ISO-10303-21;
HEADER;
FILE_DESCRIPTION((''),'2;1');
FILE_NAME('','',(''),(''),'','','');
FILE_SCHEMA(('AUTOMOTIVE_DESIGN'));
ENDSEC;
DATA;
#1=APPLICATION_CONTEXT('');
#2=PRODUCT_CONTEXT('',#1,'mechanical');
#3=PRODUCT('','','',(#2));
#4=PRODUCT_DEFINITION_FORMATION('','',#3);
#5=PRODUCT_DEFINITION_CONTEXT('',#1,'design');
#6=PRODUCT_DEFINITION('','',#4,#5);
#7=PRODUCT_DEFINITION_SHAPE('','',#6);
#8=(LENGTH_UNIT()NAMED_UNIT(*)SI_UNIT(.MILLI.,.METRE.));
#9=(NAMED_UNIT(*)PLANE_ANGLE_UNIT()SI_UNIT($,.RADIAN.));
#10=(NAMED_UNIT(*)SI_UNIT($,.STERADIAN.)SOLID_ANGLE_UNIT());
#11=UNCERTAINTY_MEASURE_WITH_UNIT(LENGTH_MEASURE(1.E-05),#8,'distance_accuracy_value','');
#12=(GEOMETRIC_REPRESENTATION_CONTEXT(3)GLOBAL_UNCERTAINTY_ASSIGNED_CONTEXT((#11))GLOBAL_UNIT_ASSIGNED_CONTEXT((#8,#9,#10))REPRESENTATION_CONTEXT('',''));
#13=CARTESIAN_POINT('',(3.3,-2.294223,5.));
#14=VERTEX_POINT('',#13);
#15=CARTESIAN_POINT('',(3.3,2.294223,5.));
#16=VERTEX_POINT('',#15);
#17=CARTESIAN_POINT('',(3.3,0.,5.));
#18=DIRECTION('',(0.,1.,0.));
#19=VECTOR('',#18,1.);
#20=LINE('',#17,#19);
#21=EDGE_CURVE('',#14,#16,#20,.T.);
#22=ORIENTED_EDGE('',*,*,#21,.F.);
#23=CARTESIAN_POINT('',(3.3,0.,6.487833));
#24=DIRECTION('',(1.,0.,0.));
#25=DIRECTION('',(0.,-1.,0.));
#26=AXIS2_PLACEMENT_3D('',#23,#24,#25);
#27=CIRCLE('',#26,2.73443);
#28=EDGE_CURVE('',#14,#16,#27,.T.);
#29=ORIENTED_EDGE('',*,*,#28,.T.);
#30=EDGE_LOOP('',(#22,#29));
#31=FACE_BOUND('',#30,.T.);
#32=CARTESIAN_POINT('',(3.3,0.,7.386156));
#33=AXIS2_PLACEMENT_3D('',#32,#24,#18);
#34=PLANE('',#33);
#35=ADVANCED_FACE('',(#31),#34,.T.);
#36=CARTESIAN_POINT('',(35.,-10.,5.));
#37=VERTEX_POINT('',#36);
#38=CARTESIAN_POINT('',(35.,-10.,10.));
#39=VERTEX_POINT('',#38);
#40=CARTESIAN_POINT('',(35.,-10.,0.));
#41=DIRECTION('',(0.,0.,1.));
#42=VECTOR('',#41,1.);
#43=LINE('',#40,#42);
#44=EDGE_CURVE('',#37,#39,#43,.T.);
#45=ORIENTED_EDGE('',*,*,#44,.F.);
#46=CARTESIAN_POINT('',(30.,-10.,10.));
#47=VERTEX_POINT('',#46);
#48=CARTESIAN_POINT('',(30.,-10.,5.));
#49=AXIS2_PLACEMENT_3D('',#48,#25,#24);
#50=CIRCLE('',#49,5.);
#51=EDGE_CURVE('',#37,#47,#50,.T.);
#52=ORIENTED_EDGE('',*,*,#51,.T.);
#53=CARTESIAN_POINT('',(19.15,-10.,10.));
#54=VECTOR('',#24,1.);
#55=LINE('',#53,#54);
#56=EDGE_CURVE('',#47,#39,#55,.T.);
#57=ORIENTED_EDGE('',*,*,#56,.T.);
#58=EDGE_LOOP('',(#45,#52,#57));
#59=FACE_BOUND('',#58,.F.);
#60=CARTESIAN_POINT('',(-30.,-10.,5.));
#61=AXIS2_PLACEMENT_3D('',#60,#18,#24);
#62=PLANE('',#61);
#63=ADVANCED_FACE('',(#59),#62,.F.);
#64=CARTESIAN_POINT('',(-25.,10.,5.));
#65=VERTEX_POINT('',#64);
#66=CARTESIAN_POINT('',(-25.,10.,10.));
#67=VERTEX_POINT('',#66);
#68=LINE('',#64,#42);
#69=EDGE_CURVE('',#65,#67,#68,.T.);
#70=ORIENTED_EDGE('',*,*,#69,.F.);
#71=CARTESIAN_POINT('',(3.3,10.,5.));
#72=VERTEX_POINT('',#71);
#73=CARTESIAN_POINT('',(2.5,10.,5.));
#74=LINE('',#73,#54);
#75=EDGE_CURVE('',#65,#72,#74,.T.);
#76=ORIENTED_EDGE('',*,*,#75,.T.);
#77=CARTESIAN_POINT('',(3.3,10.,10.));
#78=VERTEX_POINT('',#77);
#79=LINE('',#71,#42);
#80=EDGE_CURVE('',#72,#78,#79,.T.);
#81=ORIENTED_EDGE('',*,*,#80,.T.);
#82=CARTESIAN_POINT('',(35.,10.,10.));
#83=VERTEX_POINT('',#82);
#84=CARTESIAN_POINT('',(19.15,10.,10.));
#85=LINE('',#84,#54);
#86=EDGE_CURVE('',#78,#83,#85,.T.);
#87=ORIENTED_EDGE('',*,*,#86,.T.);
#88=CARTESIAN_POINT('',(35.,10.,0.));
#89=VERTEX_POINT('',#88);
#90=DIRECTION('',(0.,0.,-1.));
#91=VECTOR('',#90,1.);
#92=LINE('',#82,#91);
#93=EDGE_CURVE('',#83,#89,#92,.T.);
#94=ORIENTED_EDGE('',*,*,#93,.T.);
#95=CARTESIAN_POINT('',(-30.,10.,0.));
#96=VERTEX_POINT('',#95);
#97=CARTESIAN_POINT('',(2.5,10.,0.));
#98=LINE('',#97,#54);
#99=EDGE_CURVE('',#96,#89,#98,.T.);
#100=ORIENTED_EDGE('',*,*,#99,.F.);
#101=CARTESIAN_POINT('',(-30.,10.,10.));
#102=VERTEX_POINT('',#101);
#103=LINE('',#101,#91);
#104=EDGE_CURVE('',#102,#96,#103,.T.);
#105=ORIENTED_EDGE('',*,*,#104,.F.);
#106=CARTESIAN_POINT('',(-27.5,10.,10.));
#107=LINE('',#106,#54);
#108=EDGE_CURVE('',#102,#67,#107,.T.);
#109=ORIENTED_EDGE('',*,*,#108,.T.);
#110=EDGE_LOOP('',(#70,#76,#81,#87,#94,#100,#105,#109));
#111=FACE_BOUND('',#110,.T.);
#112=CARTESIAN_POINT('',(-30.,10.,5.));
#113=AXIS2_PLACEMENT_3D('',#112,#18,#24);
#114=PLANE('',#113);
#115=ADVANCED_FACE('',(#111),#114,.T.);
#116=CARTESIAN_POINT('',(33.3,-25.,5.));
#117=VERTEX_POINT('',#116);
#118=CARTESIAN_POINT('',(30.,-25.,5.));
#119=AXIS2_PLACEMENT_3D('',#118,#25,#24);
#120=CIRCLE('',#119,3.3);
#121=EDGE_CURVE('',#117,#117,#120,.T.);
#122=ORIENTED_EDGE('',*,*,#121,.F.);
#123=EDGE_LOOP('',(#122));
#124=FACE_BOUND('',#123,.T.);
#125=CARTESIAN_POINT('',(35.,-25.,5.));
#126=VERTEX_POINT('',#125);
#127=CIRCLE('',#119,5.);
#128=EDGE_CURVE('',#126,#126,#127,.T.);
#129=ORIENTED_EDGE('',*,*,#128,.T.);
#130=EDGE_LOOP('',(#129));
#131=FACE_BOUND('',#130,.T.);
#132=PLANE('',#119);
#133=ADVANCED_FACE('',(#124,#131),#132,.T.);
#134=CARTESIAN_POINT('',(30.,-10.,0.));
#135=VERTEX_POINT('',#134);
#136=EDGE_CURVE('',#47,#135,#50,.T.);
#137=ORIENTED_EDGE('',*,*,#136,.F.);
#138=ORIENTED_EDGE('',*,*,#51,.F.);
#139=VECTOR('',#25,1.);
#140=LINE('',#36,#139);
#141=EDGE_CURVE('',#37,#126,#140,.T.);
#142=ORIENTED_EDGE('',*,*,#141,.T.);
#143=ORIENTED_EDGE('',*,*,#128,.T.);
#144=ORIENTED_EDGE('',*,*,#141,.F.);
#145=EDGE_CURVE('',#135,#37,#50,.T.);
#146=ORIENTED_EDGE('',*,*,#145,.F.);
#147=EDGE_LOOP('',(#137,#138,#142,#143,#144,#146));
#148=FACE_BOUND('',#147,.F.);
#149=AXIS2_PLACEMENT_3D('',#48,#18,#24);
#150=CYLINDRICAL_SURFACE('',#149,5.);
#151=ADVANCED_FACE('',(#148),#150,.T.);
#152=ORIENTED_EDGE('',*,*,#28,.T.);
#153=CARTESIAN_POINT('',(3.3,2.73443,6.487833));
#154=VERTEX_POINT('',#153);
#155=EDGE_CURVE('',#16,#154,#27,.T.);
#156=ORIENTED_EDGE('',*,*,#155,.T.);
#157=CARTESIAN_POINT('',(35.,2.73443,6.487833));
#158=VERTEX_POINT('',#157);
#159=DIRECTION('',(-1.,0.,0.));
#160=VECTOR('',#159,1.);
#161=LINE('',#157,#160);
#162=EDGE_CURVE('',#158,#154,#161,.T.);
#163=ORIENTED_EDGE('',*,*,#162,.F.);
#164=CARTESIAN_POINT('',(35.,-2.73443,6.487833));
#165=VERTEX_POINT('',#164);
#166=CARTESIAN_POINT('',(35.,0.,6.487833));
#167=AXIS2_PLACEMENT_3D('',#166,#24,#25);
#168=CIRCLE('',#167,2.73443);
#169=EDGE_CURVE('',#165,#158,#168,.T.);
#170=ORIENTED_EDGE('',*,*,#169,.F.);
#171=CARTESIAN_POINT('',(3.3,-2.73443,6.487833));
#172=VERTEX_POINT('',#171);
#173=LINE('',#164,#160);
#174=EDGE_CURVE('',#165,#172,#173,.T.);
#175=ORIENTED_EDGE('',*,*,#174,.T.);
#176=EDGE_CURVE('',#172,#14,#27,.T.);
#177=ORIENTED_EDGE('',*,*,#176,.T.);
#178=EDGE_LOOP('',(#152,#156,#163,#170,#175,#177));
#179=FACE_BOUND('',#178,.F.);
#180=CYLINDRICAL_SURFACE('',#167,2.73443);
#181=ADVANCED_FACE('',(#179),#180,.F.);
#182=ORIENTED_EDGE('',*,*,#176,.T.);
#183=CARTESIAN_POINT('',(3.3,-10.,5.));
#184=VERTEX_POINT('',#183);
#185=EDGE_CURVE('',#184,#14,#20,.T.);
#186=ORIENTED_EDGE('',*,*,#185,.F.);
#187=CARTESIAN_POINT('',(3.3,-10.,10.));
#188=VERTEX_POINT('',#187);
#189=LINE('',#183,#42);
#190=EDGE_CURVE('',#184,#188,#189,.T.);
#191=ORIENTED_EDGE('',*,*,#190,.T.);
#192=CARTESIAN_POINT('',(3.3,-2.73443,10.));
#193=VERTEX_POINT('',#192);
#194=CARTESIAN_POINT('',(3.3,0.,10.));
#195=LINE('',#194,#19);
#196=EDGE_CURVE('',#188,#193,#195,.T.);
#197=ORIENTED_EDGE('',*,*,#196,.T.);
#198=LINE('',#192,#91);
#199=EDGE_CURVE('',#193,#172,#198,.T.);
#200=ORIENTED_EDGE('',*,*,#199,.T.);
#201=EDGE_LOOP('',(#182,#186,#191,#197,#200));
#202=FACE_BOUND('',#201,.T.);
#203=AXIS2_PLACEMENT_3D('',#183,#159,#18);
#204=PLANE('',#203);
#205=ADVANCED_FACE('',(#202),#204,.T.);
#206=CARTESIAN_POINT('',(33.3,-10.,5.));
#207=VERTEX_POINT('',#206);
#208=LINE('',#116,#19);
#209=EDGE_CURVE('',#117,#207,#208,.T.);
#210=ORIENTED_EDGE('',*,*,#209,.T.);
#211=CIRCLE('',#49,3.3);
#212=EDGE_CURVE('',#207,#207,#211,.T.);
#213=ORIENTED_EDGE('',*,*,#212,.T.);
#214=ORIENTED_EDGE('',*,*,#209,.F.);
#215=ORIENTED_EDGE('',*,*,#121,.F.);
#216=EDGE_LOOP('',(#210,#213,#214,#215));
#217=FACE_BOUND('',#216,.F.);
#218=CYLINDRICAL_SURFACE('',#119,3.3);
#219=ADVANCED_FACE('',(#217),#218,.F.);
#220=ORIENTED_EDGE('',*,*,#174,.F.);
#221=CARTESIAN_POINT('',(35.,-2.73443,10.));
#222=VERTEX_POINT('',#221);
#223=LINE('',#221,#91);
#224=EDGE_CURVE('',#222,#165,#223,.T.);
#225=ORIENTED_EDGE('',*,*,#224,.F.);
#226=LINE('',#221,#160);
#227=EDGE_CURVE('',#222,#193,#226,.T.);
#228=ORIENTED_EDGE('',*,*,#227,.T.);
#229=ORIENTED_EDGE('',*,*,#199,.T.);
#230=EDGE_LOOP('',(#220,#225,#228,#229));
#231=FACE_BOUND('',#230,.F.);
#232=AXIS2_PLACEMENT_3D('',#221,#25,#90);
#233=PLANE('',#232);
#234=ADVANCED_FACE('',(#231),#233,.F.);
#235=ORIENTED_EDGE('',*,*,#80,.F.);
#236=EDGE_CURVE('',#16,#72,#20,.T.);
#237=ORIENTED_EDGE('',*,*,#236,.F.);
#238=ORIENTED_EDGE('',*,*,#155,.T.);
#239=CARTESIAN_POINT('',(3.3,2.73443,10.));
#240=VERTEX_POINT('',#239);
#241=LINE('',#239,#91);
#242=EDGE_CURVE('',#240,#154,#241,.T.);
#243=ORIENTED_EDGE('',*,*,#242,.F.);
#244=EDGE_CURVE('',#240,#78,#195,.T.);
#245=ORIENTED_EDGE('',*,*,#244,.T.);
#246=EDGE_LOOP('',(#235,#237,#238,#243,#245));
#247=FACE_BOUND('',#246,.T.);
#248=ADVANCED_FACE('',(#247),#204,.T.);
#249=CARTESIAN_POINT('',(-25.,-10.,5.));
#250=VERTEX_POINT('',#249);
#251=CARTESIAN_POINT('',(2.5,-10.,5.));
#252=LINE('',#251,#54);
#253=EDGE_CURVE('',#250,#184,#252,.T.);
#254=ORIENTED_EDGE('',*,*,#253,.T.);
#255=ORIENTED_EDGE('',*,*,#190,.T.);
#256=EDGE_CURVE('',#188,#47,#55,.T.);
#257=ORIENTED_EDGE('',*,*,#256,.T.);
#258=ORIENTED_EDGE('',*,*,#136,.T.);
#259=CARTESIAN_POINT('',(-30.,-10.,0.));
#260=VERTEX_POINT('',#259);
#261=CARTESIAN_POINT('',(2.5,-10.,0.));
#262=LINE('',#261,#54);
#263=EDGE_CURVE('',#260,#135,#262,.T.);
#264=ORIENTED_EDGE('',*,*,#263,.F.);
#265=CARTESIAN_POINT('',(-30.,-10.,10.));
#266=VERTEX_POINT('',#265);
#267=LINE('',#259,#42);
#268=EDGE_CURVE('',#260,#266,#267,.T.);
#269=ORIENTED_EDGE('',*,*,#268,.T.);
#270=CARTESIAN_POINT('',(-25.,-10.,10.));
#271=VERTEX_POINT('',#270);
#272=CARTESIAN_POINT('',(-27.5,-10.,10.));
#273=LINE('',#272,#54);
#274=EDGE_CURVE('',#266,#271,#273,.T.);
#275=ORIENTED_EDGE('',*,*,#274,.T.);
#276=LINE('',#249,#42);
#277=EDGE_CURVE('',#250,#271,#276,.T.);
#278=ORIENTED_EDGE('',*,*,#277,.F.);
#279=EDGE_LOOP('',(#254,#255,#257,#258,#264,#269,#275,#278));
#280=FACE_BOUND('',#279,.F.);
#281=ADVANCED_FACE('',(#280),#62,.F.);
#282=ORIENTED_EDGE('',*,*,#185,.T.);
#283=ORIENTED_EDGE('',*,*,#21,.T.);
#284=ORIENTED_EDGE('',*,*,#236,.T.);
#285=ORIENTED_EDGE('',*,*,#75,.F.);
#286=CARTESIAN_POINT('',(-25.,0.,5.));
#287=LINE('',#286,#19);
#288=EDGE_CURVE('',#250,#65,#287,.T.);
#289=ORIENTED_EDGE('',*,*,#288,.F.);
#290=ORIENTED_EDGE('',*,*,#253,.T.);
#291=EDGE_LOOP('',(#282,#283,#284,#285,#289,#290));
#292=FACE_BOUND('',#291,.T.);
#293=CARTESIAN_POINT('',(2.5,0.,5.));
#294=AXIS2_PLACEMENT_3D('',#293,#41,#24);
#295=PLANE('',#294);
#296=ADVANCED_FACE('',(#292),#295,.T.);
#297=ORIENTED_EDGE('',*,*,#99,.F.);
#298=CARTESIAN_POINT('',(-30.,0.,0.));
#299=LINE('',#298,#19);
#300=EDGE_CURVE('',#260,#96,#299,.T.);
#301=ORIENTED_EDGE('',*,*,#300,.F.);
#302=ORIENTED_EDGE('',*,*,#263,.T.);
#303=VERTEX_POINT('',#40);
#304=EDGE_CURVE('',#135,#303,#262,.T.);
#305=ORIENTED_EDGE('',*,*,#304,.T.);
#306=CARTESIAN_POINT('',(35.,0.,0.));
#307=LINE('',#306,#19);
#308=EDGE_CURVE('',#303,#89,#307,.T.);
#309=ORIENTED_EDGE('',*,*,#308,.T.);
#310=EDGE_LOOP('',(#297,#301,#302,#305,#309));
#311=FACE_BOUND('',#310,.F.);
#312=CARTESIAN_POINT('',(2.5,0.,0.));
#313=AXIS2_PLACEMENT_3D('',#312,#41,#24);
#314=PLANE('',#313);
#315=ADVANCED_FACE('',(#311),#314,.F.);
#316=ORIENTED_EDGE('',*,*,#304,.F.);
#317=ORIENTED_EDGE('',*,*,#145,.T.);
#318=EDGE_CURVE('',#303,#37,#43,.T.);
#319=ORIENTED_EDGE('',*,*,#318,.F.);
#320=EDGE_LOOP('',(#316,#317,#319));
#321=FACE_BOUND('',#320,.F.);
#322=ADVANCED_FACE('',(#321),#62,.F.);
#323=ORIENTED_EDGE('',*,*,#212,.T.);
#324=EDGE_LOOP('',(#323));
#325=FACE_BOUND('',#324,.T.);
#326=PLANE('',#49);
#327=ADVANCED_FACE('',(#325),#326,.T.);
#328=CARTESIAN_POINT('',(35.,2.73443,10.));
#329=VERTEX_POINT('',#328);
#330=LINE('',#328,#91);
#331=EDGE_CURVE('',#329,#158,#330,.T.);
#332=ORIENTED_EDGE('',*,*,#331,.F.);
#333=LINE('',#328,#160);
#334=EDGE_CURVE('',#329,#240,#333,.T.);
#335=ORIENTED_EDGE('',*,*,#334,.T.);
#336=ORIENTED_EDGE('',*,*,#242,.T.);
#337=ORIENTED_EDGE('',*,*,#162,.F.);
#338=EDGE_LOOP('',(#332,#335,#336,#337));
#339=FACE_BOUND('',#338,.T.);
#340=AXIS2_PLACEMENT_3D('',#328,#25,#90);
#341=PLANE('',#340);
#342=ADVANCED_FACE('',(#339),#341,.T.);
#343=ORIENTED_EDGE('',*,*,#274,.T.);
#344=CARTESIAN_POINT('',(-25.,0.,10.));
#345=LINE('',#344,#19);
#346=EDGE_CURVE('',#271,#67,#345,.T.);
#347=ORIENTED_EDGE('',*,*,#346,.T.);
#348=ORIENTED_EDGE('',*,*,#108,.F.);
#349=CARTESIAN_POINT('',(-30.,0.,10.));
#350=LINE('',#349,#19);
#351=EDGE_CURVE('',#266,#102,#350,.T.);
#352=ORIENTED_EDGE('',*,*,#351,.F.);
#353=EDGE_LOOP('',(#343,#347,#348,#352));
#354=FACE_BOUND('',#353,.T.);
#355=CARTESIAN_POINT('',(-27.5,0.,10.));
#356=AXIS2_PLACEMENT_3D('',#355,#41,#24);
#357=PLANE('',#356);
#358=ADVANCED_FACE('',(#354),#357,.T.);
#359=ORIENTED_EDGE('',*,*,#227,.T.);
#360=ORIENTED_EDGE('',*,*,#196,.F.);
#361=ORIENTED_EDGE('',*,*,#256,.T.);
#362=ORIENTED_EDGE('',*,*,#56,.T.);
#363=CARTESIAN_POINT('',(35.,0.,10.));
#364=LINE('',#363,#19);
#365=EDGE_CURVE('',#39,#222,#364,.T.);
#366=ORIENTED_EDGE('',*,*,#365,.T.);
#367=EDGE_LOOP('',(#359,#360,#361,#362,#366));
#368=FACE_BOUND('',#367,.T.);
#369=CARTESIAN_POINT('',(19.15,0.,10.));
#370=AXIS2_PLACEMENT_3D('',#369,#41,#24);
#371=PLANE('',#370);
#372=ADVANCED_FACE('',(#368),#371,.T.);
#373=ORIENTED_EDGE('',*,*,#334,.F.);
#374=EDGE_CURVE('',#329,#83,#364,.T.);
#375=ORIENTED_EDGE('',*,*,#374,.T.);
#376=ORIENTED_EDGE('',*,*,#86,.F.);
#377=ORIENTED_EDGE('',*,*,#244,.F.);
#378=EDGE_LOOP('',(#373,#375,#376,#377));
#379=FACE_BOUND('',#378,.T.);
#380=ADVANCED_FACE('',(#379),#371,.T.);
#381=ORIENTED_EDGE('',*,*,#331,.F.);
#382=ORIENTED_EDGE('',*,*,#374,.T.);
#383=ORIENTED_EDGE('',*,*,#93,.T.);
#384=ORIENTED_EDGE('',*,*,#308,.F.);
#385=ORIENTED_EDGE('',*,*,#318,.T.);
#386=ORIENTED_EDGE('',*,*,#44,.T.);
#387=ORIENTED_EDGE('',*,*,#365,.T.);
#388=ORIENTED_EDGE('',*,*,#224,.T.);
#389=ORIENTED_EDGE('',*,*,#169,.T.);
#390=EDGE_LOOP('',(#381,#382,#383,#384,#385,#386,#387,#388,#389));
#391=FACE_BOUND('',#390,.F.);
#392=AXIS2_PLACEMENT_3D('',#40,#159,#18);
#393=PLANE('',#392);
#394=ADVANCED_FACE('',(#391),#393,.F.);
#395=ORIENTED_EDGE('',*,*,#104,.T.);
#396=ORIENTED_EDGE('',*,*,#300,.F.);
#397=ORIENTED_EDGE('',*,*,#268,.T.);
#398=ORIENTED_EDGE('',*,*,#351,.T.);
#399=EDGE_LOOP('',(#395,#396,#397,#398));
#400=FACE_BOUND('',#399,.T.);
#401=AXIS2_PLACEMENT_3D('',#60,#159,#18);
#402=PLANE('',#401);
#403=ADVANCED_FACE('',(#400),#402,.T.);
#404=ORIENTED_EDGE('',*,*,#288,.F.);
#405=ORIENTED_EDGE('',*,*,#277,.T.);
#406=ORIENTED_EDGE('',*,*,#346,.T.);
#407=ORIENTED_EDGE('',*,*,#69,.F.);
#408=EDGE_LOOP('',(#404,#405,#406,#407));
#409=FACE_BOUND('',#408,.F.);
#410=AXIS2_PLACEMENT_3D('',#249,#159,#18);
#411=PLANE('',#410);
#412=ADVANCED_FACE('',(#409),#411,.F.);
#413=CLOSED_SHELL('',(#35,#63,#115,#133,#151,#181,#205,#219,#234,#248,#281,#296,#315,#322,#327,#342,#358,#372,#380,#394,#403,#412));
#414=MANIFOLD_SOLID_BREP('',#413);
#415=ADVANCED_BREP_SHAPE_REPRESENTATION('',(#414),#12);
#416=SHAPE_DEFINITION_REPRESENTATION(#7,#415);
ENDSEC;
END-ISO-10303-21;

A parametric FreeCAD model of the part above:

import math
import FreeCAD as App
import Part
import Sketcher

doc = App.newDocument("Part")
body = doc.addObject("PartDesign::Body", "Body")

# Sketch on XY plane
sketch1 = body.newObject("Sketcher::SketchObject", "Sketch")
sketch1.AttachmentSupport = (doc.getObject("XY_Plane"), [""])
sketch1.MapMode = "FlatFace"
sketch1.addGeometry(Part.LineSegment(App.Vector(-30, 10, 0), App.Vector(-30, -10, 0)), False)
sketch1.addGeometry(Part.LineSegment(App.Vector(-30, -10, 0), App.Vector(35, -10, 0)), False)
sketch1.addGeometry(Part.LineSegment(App.Vector(35, -10, 0), App.Vector(35, 10, 0)), False)
sketch1.addGeometry(Part.LineSegment(App.Vector(35, 10, 0), App.Vector(-30, 10, 0)), False)
sketch1.addConstraint(Sketcher.Constraint("Coincident", 0, 2, 1, 1))
sketch1.addConstraint(Sketcher.Constraint("Coincident", 1, 2, 2, 1))
sketch1.addConstraint(Sketcher.Constraint("Coincident", 2, 2, 3, 1))
sketch1.addConstraint(Sketcher.Constraint("Coincident", 3, 2, 0, 1))
sketch1.addConstraint(Sketcher.Constraint("Vertical", 0))
sketch1.addConstraint(Sketcher.Constraint("Horizontal", 1))
sketch1.addConstraint(Sketcher.Constraint("Vertical", 2))
sketch1.addConstraint(Sketcher.Constraint("Horizontal", 3))
sketch1.addConstraint(Sketcher.Constraint("DistanceX", 1, 1, 1, 2, 65.0))
sketch1.addConstraint(Sketcher.Constraint("DistanceY", 0, 2, 0, 1, 20.0))
sketch1.addConstraint(Sketcher.Constraint("DistanceX", 0, 2, -1, 1, 30.0))
sketch1.addConstraint(Sketcher.Constraint("DistanceY", 0, 2, -1, 1, 10.0))
pad1 = body.newObject("PartDesign::Pad", "Pad")
pad1.Profile = sketch1
pad1.Length = 5

# Sketch on XY plane
sketch2 = body.newObject("Sketcher::SketchObject", "Sketch001")
sketch2.AttachmentSupport = (doc.getObject("XY_Plane"), [""])
sketch2.MapMode = "FlatFace"
sketch2.AttachmentOffset = App.Placement(App.Vector(0, 0, 5), App.Rotation())
sketch2.addGeometry(Part.LineSegment(App.Vector(-30, 10, 0), App.Vector(-30, -10, 0)), False)
sketch2.addGeometry(Part.LineSegment(App.Vector(-30, -10, 0), App.Vector(-25, -10, 0)), False)
sketch2.addGeometry(Part.LineSegment(App.Vector(-25, -10, 0), App.Vector(-25, 10, 0)), False)
sketch2.addGeometry(Part.LineSegment(App.Vector(-25, 10, 0), App.Vector(-30, 10, 0)), False)
sketch2.addGeometry(Part.LineSegment(App.Vector(3, 10, 0), App.Vector(3, -10, 0)), False)
sketch2.addGeometry(Part.LineSegment(App.Vector(3, -10, 0), App.Vector(35, -10, 0)), False)
sketch2.addGeometry(Part.LineSegment(App.Vector(35, -10, 0), App.Vector(35, 10, 0)), False)
sketch2.addGeometry(Part.LineSegment(App.Vector(35, 10, 0), App.Vector(3, 10, 0)), False)
sketch2.addConstraint(Sketcher.Constraint("Coincident", 0, 2, 1, 1))
sketch2.addConstraint(Sketcher.Constraint("Coincident", 1, 2, 2, 1))
sketch2.addConstraint(Sketcher.Constraint("Coincident", 2, 2, 3, 1))
sketch2.addConstraint(Sketcher.Constraint("Coincident", 3, 2, 0, 1))
sketch2.addConstraint(Sketcher.Constraint("Coincident", 4, 2, 5, 1))
sketch2.addConstraint(Sketcher.Constraint("Coincident", 5, 2, 6, 1))
sketch2.addConstraint(Sketcher.Constraint("Coincident", 6, 2, 7, 1))
sketch2.addConstraint(Sketcher.Constraint("Coincident", 7, 2, 4, 1))
sketch2.addConstraint(Sketcher.Constraint("Vertical", 0))
sketch2.addConstraint(Sketcher.Constraint("Horizontal", 1))
sketch2.addConstraint(Sketcher.Constraint("Vertical", 2))
sketch2.addConstraint(Sketcher.Constraint("Horizontal", 3))
sketch2.addConstraint(Sketcher.Constraint("Vertical", 4))
sketch2.addConstraint(Sketcher.Constraint("Horizontal", 5))
sketch2.addConstraint(Sketcher.Constraint("Vertical", 6))
sketch2.addConstraint(Sketcher.Constraint("Horizontal", 7))
sketch2.addConstraint(Sketcher.Constraint("Horizontal", 1, 2, 4, 2))
sketch2.addConstraint(Sketcher.Constraint("Horizontal", 3, 2, 6, 2))
sketch2.addConstraint(Sketcher.Constraint("DistanceX", 1, 1, 1, 2, 5.0))
sketch2.addConstraint(Sketcher.Constraint("DistanceY", 0, 2, 0, 1, 20.0))
sketch2.addConstraint(Sketcher.Constraint("DistanceX", 5, 1, 5, 2, 31.7))
sketch2.addConstraint(Sketcher.Constraint("DistanceX", 0, 2, -1, 1, 30.0))
sketch2.addConstraint(Sketcher.Constraint("DistanceY", 0, 2, -1, 1, 10.0))
sketch2.addConstraint(Sketcher.Constraint("DistanceX", -1, 1, 5, 2, 35.0))
pad2 = body.newObject("PartDesign::Pad", "Pad001")
pad2.Profile = sketch2
pad2.Length = 5

# Sketch on YZ plane
sketch3 = body.newObject("Sketcher::SketchObject", "Sketch002")
sketch3.AttachmentSupport = (doc.getObject("YZ_Plane"), [""])
sketch3.MapMode = "FlatFace"
sketch3.AttachmentOffset = App.Placement(App.Vector(0, 0, 35), App.Rotation())
sketch3.addGeometry(Part.LineSegment(App.Vector(-2.7, 10, 0), App.Vector(-2.7, 6.5, 0)), False)
sketch3.addGeometry(Part.ArcOfCircle(Part.Circle(App.Vector(0, 6.5, 0), App.Vector(0, 0, 1), 2.7), math.radians(180), math.radians(360)), False)
sketch3.addGeometry(Part.LineSegment(App.Vector(2.7, 6.5, 0), App.Vector(2.7, 10, 0)), False)
sketch3.addGeometry(Part.LineSegment(App.Vector(2.7, 10, 0), App.Vector(-2.7, 10, 0)), False)
sketch3.addConstraint(Sketcher.Constraint("Tangent", 0, 2, 1, 1))
sketch3.addConstraint(Sketcher.Constraint("Tangent", 1, 2, 2, 1))
sketch3.addConstraint(Sketcher.Constraint("Coincident", 2, 2, 3, 1))
sketch3.addConstraint(Sketcher.Constraint("Coincident", 3, 2, 0, 1))
sketch3.addConstraint(Sketcher.Constraint("Vertical", 0))
sketch3.addConstraint(Sketcher.Constraint("Vertical", 2))
sketch3.addConstraint(Sketcher.Constraint("Horizontal", 3))
sketch3.addConstraint(Sketcher.Constraint("PointOnObject", 1, 3, -2))
sketch3.addConstraint(Sketcher.Constraint("DistanceY", -1, 1, 2, 2, 10.0))
sketch3.addConstraint(Sketcher.Constraint("Radius", 1, 2.73443))
sketch3.addConstraint(Sketcher.Constraint("DistanceY", 0, 2, 0, 1, 3.512167))
pocket1 = body.newObject("PartDesign::Pocket", "Pocket")
pocket1.Profile = sketch3
pocket1.Length = 31.7

# Sketch on XZ plane
sketch4 = body.newObject("Sketcher::SketchObject", "Sketch003")
sketch4.AttachmentSupport = (doc.getObject("XZ_Plane"), [""])
sketch4.MapMode = "FlatFace"
sketch4.AttachmentOffset = App.Placement(App.Vector(0, 0, 10), App.Rotation())
sketch4.addGeometry(Part.Circle(App.Vector(30, 5, 0), App.Vector(0, 0, 1), 5), False)
sketch4.addConstraint(Sketcher.Constraint("Diameter", 0, 10.0))
sketch4.addConstraint(Sketcher.Constraint("DistanceX", -1, 1, 0, 3, 30.0))
sketch4.addConstraint(Sketcher.Constraint("DistanceY", -1, 1, 0, 3, 5.0))
pad3 = body.newObject("PartDesign::Pad", "Pad002")
pad3.Profile = sketch4
pad3.Length = 15

# Sketch on XZ plane
sketch5 = body.newObject("Sketcher::SketchObject", "Sketch004")
sketch5.AttachmentSupport = (doc.getObject("XZ_Plane"), [""])
sketch5.MapMode = "FlatFace"
sketch5.AttachmentOffset = App.Placement(App.Vector(0, 0, 25), App.Rotation())
sketch5.addGeometry(Part.Circle(App.Vector(30, 5, 0), App.Vector(0, 0, 1), 3.3), False)
sketch5.addConstraint(Sketcher.Constraint("Diameter", 0, 6.6))
sketch5.addConstraint(Sketcher.Constraint("DistanceX", -1, 1, 0, 3, 30.0))
sketch5.addConstraint(Sketcher.Constraint("DistanceY", -1, 1, 0, 3, 5.0))
pocket2 = body.newObject("PartDesign::Pocket", "Pocket001")
pocket2.Profile = sketch5
pocket2.Length = 15

doc.recompute()
